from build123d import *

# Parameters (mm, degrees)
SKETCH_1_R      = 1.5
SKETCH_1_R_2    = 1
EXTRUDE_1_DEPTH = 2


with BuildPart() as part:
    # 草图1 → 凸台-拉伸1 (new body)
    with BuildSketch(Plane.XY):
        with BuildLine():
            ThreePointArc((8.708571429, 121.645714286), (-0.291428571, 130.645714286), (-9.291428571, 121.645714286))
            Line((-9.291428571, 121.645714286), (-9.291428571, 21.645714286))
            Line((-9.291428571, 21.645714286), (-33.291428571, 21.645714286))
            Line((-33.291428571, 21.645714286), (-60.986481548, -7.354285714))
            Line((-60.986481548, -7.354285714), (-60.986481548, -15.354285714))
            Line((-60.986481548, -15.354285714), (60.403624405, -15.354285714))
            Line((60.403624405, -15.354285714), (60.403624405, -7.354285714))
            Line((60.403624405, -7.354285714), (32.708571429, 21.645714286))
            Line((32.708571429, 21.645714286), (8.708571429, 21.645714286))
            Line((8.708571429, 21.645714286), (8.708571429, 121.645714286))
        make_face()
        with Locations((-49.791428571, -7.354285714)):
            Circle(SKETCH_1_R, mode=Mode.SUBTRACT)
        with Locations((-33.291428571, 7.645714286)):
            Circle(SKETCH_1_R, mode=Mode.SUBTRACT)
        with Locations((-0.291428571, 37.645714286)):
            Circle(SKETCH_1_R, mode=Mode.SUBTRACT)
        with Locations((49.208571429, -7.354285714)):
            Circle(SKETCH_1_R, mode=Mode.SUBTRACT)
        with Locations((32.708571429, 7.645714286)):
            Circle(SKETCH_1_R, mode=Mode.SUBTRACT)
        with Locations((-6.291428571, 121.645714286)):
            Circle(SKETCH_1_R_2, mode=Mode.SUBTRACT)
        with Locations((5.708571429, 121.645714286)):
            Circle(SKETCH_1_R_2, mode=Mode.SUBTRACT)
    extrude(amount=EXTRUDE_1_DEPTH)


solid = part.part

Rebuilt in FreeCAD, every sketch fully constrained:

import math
import FreeCAD as App
import Part
import Sketcher
Q = App.Units.Quantity

doc = App.newDocument("Part")
params = doc.addObject("Spreadsheet::Sheet", "Params")
for row, (alias, value) in enumerate([
    ("sketch1_diameter", "3 mm"),
    ("sketch1_diameter2", "2 mm"),
    ("sketch1_radius", "9 mm"),
    ("sketch1_width", "24 mm"),
    ("sketch1_height", "100 mm"),
    ("pad1_length", "2 mm"),
], start=1):
    params.set(f"A{row}", alias)
    params.set(f"B{row}", "=" + value)
    params.setAlias(f"B{row}", alias)

body = doc.addObject("PartDesign::Body", "Body")

sketch1 = body.newObject("Sketcher::SketchObject", "Sketch")
sketch1.AttachmentSupport = (doc.getObject("XY_Plane"), [""])
sketch1.MapMode = "FlatFace"
sketch1.addGeometry(Part.ArcOfCircle(Part.Circle(App.Vector(-0.3, 121.6, 0), App.Vector(0, 0, 1), 9), math.radians(0), math.radians(180)), False)
sketch1.addGeometry(Part.LineSegment(App.Vector(-9.3, 121.6, 0), App.Vector(-9.3, 21.6, 0)), False)
sketch1.addGeometry(Part.LineSegment(App.Vector(-9.3, 21.6, 0), App.Vector(-33.3, 21.6, 0)), False)
sketch1.addGeometry(Part.LineSegment(App.Vector(-33.3, 21.6, 0), App.Vector(-61, -7.4, 0)), False)
sketch1.addGeometry(Part.LineSegment(App.Vector(-61, -7.4, 0), App.Vector(-61, -15.4, 0)), False)
sketch1.addGeometry(Part.LineSegment(App.Vector(-61, -15.4, 0), App.Vector(60.4, -15.4, 0)), False)
sketch1.addGeometry(Part.LineSegment(App.Vector(60.4, -15.4, 0), App.Vector(60.4, -7.4, 0)), False)
sketch1.addGeometry(Part.LineSegment(App.Vector(60.4, -7.4, 0), App.Vector(32.7, 21.6, 0)), False)
sketch1.addGeometry(Part.LineSegment(App.Vector(32.7, 21.6, 0), App.Vector(8.7, 21.6, 0)), False)
sketch1.addGeometry(Part.LineSegment(App.Vector(8.7, 21.6, 0), App.Vector(8.7, 121.6, 0)), False)
sketch1.addGeometry(Part.Circle(App.Vector(-49.8, -7.4, 0), App.Vector(0, 0, 1), 1.5), False)
sketch1.addGeometry(Part.Circle(App.Vector(-33.3, 7.6, 0), App.Vector(0, 0, 1), 1.5), False)
sketch1.addGeometry(Part.Circle(App.Vector(-0.3, 37.6, 0), App.Vector(0, 0, 1), 1.5), False)
sketch1.addGeometry(Part.Circle(App.Vector(49.2, -7.4, 0), App.Vector(0, 0, 1), 1.5), False)
sketch1.addGeometry(Part.Circle(App.Vector(32.7, 7.6, 0), App.Vector(0, 0, 1), 1.5), False)
sketch1.addGeometry(Part.Circle(App.Vector(-6.3, 121.6, 0), App.Vector(0, 0, 1), 1), False)
sketch1.addGeometry(Part.Circle(App.Vector(5.7, 121.6, 0), App.Vector(0, 0, 1), 1), False)
sketch1.addConstraint(Sketcher.Constraint("Tangent", 0, 2, 1, 1))
sketch1.addConstraint(Sketcher.Constraint("Coincident", 1, 2, 2, 1))
sketch1.addConstraint(Sketcher.Constraint("Coincident", 2, 2, 3, 1))
sketch1.addConstraint(Sketcher.Constraint("Coincident", 3, 2, 4, 1))
sketch1.addConstraint(Sketcher.Constraint("Coincident", 4, 2, 5, 1))
sketch1.addConstraint(Sketcher.Constraint("Coincident", 5, 2, 6, 1))
sketch1.addConstraint(Sketcher.Constraint("Coincident", 6, 2, 7, 1))
sketch1.addConstraint(Sketcher.Constraint("Coincident", 7, 2, 8, 1))
sketch1.addConstraint(Sketcher.Constraint("Coincident", 8, 2, 9, 1))
sketch1.addConstraint(Sketcher.Constraint("Tangent", 9, 2, 0, 1))
sketch1.addConstraint(Sketcher.Constraint("Vertical", 1))
sketch1.addConstraint(Sketcher.Constraint("Horizontal", 2))
sketch1.addConstraint(Sketcher.Constraint("Vertical", 4))
sketch1.addConstraint(Sketcher.Constraint("Horizontal", 5))
sketch1.addConstraint(Sketcher.Constraint("Vertical", 6))
sketch1.addConstraint(Sketcher.Constraint("Horizontal", 8))
sketch1.addConstraint(Sketcher.Constraint("Vertical", 9))
sketch1.addConstraint(Sketcher.Constraint("Equal", 10, 11))
sketch1.addConstraint(Sketcher.Constraint("Equal", 11, 12))
sketch1.addConstraint(Sketcher.Constraint("Equal", 12, 13))
sketch1.addConstraint(Sketcher.Constraint("Equal", 13, 14))
sketch1.addConstraint(Sketcher.Constraint("Equal", 15, 16))
sketch1.addConstraint(Sketcher.Constraint("Horizontal", 10, 3, 13, 3))
sketch1.addConstraint(Sketcher.Constraint("Horizontal", 11, 3, 14, 3))
sketch1.addConstraint(Sketcher.Constraint("Horizontal", 0, 3, 15, 3))
sketch1.addConstraint(Sketcher.Constraint("Horizontal", 15, 3, 16, 3))
sketch1.addConstraint(Sketcher.Constraint("Horizontal", 13, 3, 3, 2))
sketch1.addConstraint(Sketcher.Constraint("Horizontal", 3, 2, 6, 2))
sketch1.addConstraint(Sketcher.Constraint("Horizontal", 2, 2, 7, 2))
sketch1.addConstraint(Sketcher.Constraint("Vertical", 0, 3, 12, 3))
sketch1.addConstraint(Sketcher.Constraint("Vertical", 11, 3, 2, 2))
sketch1.addConstraint(Sketcher.Constraint("Vertical", 14, 3, 7, 2))
sketch1.addConstraint(Sketcher.Constraint("Equal", 2, 8))
sketch1.addConstraint(Sketcher.Constraint("Equal", 3, 7))
sketch1.addConstraint(Sketcher.Constraint("Diameter", 10, Q("3 mm")))
sketch1.addConstraint(Sketcher.Constraint("Diameter", 15, Q("2 mm")))
sketch1.addConstraint(Sketcher.Constraint("Radius", 0, Q("9 mm")))
sketch1.addConstraint(Sketcher.Constraint("DistanceX", 2, 2, 2, 1, Q("24 mm")))
sketch1.addConstraint(Sketcher.Constraint("DistanceY", 1, 2, 1, 1, Q("100 mm")))
sketch1.addConstraint(Sketcher.Constraint("DistanceY", 4, 2, 4, 1, Q("8 mm")))
sketch1.addConstraint(Sketcher.Constraint("DistanceY", 10, 3, 0, 3, Q("129 mm")))
sketch1.addConstraint(Sketcher.Constraint("DistanceY", 10, 3, 11, 3, Q("15 mm")))
sketch1.addConstraint(Sketcher.Constraint("DistanceY", 11, 3, 12, 3, Q("30 mm")))
sketch1.addConstraint(Sketcher.Constraint("DistanceX", 10, 3, 13, 3, Q("99 mm")))
sketch1.addConstraint(Sketcher.Constraint("DistanceX", 15, 3, 0, 3, Q("6 mm")))
sketch1.addConstraint(Sketcher.Constraint("DistanceX", 0, 3, 16, 3, Q("6 mm")))
sketch1.addConstraint(Sketcher.Constraint("DistanceX", 10, 3, 0, 3, Q("49.5 mm")))
sketch1.addConstraint(Sketcher.Constraint("DistanceX", 5, 1, 5, 2, Q("121.390106 mm")))
sketch1.addConstraint(Sketcher.Constraint("DistanceX", 0, 3, -1, 1, Q("0.291429 mm")))
sketch1.addConstraint(Sketcher.Constraint("DistanceY", -1, 1, 0, 3, Q("121.645714 mm")))
sketch1.setExpression("Constraints[34]", "Params.sketch1_diameter")
sketch1.setExpression("Constraints[35]", "Params.sketch1_diameter2")
sketch1.setExpression("Constraints[36]", "Params.sketch1_radius")
sketch1.setExpression("Constraints[37]", "Params.sketch1_width")
sketch1.setExpression("Constraints[38]", "Params.sketch1_height")
pad1 = body.newObject("PartDesign::Pad", "Pad")
pad1.Profile = sketch1
pad1.setExpression("Length", "Params.pad1_length")

doc.recompute()
